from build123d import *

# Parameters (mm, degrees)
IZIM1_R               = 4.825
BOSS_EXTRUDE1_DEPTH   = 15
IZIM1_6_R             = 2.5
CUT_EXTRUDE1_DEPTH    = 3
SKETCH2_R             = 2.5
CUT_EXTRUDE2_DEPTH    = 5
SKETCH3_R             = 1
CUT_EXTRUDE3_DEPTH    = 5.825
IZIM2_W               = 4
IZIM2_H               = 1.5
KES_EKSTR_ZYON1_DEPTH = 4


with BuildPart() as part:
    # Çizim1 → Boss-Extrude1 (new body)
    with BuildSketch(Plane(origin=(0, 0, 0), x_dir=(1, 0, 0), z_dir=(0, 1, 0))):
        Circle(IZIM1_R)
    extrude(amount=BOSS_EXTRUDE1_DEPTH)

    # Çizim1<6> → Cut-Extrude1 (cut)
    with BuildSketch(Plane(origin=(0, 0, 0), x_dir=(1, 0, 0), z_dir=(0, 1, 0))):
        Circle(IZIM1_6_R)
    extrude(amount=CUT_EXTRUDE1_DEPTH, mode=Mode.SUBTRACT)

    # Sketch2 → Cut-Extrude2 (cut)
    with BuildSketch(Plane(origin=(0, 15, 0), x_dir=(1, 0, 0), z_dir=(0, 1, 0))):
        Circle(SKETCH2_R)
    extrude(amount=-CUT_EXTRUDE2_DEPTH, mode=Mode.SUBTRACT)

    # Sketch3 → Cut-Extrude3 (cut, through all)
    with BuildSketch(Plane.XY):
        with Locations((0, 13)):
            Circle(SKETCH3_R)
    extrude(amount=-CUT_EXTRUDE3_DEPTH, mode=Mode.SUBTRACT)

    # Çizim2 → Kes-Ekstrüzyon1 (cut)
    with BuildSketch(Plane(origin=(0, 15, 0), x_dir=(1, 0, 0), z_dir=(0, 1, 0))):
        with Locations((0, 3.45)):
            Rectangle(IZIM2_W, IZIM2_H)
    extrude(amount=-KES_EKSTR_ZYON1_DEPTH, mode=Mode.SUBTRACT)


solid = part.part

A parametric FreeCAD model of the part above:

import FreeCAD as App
import Part
import Sketcher
from FreeCAD import Vector


def add_polygon(sketch, points):
    """Adds a closed chain of lines whose ends are joined by coincident constraints."""
    first, n = sketch.GeometryCount, len(points)
    for a, b in zip(points, points[1:] + points[:1]):
        sketch.addGeometry(Part.LineSegment(App.Vector(*a, 0), App.Vector(*b, 0)), False)
    for i in range(n):
        sketch.addConstraint(Sketcher.Constraint("Coincident", first + i, 2, first + (i + 1) % n, 1))

doc = App.newDocument("Part")
body = doc.addObject("PartDesign::Body", "Body")

sketch1 = body.newObject("Sketcher::SketchObject", "Sketch")
sketch1.AttachmentSupport = (doc.getObject("XZ_Plane"), [""])
sketch1.MapMode = "FlatFace"
sketch1.addGeometry(Part.Circle(Vector(0, 0, 0), Vector(0, 0, 1), 4.8), False)
sketch1.addConstraint(Sketcher.Constraint("Coincident", 0, 3, -1, 1))
sketch1.addConstraint(Sketcher.Constraint("Diameter", 0, 9.65))
pad1 = body.newObject("PartDesign::Pad", "Pad")
pad1.Profile = sketch1
pad1.Length = 15
pad1.Reversed = True

sketch2 = body.newObject("Sketcher::SketchObject", "Sketch001")
sketch2.AttachmentSupport = (doc.getObject("XZ_Plane"), [""])
sketch2.MapMode = "FlatFace"
sketch2.addGeometry(Part.Circle(Vector(0, 0, 0), Vector(0, 0, 1), 2.5), False)
sketch2.addConstraint(Sketcher.Constraint("Coincident", 0, 3, -1, 1))
sketch2.addConstraint(Sketcher.Constraint("Diameter", 0, 5.0))
pocket1 = body.newObject("PartDesign::Pocket", "Pocket")
pocket1.Profile = sketch2
pocket1.Length = 3

sketch3 = body.newObject("Sketcher::SketchObject", "Sketch002")
sketch3.AttachmentSupport = (doc.getObject("XZ_Plane"), [""])
sketch3.MapMode = "FlatFace"
sketch3.AttachmentOffset = App.Placement(Vector(0, 0, -15), App.Rotation())
sketch3.addGeometry(Part.Circle(Vector(0, 0, 0), Vector(0, 0, 1), 2.5), False)
sketch3.addConstraint(Sketcher.Constraint("Coincident", 0, 3, -1, 1))
sketch3.addConstraint(Sketcher.Constraint("Diameter", 0, 5.0))
pocket2 = body.newObject("PartDesign::Pocket", "Pocket001")
pocket2.Profile = sketch3
pocket2.Length = 5
pocket2.Reversed = True

sketch4 = body.newObject("Sketcher::SketchObject", "Sketch003")
sketch4.AttachmentSupport = (doc.getObject("XY_Plane"), [""])
sketch4.MapMode = "FlatFace"
sketch4.addGeometry(Part.Circle(Vector(0, 13, 0), Vector(0, 0, 1), 1), False)
sketch4.addConstraint(Sketcher.Constraint("PointOnObject", 0, 3, -2))
sketch4.addConstraint(Sketcher.Constraint("Diameter", 0, 2.0))
sketch4.addConstraint(Sketcher.Constraint("DistanceY", -1, 1, 0, 3, 13.0))
pocket3 = body.newObject("PartDesign::Pocket", "Pocket002")
pocket3.Profile = sketch4
pocket3.Type = "ThroughAll"

sketch5 = body.newObject("Sketcher::SketchObject", "Sketch004")
sketch5.AttachmentSupport = (doc.getObject("XZ_Plane"), [""])
sketch5.MapMode = "FlatFace"
sketch5.AttachmentOffset = App.Placement(Vector(0, 0, -15), App.Rotation())
add_polygon(sketch5, [(-2, -4.2), (-2, -2.7), (2, -2.7), (2, -4.2)])
sketch5.addConstraint(Sketcher.Constraint("Vertical", 0))
sketch5.addConstraint(Sketcher.Constraint("Horizontal", 1))
sketch5.addConstraint(Sketcher.Constraint("Vertical", 2))
sketch5.addConstraint(Sketcher.Constraint("Horizontal", 3))
sketch5.addConstraint(Sketcher.Constraint("DistanceX", 1, 1, 1, 2, 4.0))
sketch5.addConstraint(Sketcher.Constraint("DistanceY", 0, 1, 0, 2, 1.5))
sketch5.addConstraint(Sketcher.Constraint("DistanceX", 0, 2, -1, 1, 2.0))
sketch5.addConstraint(Sketcher.Constraint("DistanceY", 0, 2, -1, 1, 2.7))
pocket4 = body.newObject("PartDesign::Pocket", "Pocket003")
pocket4.Profile = sketch5
pocket4.Length = 4
pocket4.Reversed = True

doc.recompute()
